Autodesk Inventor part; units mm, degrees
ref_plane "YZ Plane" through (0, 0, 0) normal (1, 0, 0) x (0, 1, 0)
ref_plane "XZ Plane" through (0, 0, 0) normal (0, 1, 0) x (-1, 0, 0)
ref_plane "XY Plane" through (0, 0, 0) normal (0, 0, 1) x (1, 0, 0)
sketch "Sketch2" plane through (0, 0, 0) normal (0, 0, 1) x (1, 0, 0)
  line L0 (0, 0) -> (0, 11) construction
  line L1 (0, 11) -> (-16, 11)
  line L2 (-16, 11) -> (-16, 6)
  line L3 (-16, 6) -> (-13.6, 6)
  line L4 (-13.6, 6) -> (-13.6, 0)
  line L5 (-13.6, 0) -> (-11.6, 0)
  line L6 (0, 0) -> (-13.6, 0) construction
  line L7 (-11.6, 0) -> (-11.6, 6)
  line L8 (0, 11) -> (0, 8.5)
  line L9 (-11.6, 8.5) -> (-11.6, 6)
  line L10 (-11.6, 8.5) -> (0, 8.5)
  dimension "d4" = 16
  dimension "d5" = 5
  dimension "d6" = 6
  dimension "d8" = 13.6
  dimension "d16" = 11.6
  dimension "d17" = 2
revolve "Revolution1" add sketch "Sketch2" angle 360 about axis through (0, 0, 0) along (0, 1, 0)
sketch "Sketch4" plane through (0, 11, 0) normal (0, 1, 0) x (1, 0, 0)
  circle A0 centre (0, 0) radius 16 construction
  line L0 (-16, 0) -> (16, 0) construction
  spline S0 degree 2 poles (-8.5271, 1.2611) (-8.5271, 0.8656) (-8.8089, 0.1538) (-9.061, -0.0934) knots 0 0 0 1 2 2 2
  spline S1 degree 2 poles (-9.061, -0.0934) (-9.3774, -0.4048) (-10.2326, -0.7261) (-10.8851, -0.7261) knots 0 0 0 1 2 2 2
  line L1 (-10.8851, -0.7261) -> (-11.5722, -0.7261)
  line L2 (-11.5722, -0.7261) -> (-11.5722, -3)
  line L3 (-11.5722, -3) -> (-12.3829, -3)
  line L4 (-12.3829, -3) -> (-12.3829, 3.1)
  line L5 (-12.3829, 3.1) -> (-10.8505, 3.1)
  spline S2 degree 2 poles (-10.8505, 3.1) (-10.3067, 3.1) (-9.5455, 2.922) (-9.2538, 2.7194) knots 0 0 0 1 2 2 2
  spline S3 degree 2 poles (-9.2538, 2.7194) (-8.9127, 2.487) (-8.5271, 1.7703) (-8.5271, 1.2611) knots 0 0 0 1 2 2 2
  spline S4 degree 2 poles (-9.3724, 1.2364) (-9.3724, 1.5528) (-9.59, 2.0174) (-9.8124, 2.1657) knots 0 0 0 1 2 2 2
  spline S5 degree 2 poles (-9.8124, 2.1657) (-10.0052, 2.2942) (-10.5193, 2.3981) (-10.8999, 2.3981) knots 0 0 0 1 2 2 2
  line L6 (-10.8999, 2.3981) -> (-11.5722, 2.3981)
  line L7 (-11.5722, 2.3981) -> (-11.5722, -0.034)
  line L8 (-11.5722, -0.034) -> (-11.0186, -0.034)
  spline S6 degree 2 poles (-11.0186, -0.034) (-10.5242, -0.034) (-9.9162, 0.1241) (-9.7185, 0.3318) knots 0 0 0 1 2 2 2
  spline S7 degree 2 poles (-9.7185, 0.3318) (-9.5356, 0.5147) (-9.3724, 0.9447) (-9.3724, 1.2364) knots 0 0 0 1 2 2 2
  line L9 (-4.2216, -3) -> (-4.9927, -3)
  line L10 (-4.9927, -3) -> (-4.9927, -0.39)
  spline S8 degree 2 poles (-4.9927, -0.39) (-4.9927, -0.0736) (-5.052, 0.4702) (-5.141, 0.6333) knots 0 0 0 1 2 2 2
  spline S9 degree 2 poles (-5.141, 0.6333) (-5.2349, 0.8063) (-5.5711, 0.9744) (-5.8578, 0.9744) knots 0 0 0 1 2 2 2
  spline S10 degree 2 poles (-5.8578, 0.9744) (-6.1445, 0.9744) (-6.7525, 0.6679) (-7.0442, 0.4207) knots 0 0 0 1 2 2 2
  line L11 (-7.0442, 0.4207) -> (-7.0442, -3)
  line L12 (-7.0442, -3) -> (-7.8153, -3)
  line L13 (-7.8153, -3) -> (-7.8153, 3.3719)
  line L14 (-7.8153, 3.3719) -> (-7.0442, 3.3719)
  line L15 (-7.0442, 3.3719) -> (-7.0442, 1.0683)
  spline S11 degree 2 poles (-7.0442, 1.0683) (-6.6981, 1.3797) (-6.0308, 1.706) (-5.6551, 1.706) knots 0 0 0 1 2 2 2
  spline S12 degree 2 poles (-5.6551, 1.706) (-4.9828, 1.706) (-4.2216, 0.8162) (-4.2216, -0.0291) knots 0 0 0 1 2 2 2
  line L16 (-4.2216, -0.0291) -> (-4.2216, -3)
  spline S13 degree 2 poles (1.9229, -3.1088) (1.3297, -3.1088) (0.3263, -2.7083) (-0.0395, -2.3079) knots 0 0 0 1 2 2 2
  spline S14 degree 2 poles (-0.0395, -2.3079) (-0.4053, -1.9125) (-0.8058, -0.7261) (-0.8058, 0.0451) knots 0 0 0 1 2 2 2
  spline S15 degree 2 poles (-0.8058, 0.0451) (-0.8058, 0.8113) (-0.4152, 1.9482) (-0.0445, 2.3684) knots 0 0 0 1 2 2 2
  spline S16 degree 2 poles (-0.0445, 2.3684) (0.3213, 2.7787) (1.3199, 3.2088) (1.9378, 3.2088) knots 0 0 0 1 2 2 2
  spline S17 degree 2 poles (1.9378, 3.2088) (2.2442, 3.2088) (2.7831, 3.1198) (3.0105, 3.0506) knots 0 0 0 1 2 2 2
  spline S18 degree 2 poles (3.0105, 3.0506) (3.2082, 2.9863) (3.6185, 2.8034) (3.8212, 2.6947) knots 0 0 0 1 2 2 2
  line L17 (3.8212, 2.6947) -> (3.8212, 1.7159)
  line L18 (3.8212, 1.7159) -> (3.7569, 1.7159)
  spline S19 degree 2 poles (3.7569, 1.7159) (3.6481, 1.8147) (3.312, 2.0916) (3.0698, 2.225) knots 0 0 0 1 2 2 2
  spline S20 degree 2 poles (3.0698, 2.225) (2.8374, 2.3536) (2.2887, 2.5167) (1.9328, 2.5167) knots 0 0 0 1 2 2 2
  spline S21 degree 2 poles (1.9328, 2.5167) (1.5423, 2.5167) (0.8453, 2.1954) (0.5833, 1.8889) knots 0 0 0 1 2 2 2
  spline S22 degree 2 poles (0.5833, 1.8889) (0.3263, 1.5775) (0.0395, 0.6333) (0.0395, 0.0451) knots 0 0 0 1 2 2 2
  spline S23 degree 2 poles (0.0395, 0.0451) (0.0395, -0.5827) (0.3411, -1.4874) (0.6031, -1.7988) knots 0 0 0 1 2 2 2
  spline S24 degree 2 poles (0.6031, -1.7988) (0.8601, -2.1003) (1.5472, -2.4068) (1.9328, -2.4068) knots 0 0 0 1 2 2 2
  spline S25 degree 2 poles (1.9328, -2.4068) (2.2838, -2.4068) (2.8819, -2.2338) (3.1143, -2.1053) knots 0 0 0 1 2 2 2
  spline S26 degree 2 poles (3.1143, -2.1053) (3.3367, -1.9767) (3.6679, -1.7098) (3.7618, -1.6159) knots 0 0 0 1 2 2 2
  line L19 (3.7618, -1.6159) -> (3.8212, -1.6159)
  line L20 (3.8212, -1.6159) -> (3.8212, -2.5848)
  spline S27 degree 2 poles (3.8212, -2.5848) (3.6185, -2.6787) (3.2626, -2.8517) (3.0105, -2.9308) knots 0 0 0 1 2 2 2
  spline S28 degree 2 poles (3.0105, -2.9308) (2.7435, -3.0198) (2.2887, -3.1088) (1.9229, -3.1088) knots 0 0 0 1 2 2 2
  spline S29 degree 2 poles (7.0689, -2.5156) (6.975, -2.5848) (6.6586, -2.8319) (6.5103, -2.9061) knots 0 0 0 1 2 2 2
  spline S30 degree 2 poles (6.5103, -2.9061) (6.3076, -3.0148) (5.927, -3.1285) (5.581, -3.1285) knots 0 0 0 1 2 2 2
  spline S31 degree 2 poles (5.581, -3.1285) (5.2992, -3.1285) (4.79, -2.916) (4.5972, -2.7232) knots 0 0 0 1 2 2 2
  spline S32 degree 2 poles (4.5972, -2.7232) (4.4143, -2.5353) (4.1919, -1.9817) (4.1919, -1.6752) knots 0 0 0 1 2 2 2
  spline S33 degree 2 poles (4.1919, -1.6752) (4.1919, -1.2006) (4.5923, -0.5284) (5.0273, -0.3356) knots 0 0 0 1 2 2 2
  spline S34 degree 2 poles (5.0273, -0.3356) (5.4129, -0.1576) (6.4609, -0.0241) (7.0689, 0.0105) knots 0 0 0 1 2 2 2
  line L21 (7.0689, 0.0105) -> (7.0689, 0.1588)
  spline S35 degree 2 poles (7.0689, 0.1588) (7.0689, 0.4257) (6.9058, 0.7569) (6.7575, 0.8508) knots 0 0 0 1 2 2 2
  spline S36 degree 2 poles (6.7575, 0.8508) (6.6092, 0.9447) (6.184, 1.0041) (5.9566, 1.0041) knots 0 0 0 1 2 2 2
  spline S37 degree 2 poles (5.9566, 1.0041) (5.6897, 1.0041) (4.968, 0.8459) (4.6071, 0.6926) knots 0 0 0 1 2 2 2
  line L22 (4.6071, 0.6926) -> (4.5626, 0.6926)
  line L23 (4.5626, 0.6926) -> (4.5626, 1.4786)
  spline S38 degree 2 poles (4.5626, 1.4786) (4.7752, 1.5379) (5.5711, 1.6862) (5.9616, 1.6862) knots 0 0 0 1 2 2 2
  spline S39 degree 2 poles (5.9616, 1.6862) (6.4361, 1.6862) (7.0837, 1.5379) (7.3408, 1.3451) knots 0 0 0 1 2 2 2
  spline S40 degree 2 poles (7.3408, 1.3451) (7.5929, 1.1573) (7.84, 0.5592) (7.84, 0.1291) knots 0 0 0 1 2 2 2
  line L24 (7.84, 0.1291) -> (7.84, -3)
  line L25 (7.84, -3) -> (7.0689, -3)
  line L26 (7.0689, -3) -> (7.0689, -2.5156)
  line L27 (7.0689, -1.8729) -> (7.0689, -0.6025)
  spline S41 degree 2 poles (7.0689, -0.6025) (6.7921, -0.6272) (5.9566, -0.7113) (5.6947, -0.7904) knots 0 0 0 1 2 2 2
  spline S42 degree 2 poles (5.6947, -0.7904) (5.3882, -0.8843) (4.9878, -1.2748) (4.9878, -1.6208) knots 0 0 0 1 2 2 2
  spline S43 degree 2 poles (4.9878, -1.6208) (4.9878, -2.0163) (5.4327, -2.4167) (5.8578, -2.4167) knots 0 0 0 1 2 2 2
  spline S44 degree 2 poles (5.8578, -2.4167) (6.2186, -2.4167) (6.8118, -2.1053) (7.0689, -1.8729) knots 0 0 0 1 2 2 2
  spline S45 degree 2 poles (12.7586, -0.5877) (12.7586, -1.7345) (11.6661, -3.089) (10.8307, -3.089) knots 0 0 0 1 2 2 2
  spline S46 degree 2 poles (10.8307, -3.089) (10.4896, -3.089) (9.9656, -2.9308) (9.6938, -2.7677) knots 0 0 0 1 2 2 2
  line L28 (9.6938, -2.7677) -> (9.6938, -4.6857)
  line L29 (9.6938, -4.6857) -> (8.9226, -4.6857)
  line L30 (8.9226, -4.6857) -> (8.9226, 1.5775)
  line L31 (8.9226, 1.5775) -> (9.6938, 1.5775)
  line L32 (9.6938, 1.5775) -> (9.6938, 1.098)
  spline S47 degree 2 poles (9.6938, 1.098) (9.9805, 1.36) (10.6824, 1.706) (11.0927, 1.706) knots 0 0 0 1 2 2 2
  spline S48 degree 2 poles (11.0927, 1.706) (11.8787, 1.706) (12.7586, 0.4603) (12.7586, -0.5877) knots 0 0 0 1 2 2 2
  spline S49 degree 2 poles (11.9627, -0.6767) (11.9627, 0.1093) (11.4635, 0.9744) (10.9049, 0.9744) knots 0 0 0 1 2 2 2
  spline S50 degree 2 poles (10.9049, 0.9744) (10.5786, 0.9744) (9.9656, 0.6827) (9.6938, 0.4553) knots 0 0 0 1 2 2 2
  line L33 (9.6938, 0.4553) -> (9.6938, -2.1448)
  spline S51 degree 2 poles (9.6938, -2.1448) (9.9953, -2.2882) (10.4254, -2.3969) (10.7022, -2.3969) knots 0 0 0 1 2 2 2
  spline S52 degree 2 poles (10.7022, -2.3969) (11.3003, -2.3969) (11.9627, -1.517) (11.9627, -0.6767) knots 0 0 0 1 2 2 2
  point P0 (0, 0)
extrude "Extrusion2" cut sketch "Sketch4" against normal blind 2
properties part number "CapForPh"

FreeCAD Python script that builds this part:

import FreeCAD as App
import Part
import Sketcher

V = App.Vector
Q = App.Units.Quantity


def add_polygon(sketch, points):
    """Adds a closed chain of lines whose ends are joined by coincident constraints."""
    first, n = sketch.GeometryCount, len(points)
    for a, b in zip(points, points[1:] + points[:1]):
        sketch.addGeometry(Part.LineSegment(App.Vector(*a, 0), App.Vector(*b, 0)), False)
    for i in range(n):
        sketch.addConstraint(Sketcher.Constraint("Coincident", first + i, 2, first + (i + 1) % n, 1))

doc = App.newDocument("Part")
params = doc.addObject("Spreadsheet::Sheet", "Params")
for row, (alias, value) in enumerate([
    ("sketch1_width", "16 mm"),
    ("sketch1_width2", "2 mm"),
    ("sketch1_height", "5 mm"),
    ("sketch1_height2", "6 mm"),
    ("sketch1_width3", "11.6 mm"),
    ("revolution_angle", "360 deg"),
    ("sketch2_height", "6.1 mm"),
    ("pocket1_length", "2 mm"),
], start=1):
    params.set(f"A{row}", alias)
    params.set(f"B{row}", "=" + value)
    params.setAlias(f"B{row}", alias)

body = doc.addObject("PartDesign::Body", "Body")

# Sketch on XY plane
sketch1 = body.newObject("Sketcher::SketchObject", "Sketch")
sketch1.AttachmentSupport = (doc.getObject("XY_Plane"), [""])
sketch1.MapMode = "FlatFace"
add_polygon(sketch1, [(0, 8.5), (0, 11), (-16, 11), (-16, 6), (-13.6, 6), (-13.6, 0), (-11.6, 0), (-11.6, 8.5)])  # lines 0-7
sketch1.addConstraint([
    Sketcher.Constraint("Vertical", 0),
    Sketcher.Constraint("Horizontal", 1),
    Sketcher.Constraint("Vertical", 2),
    Sketcher.Constraint("Horizontal", 3),
    Sketcher.Constraint("Vertical", 4),
    Sketcher.Constraint("Horizontal", 5),
    Sketcher.Constraint("Vertical", 6),
    Sketcher.Constraint("Horizontal", 7),
    Sketcher.Constraint("PointOnObject", 0, 2, -2),
    Sketcher.Constraint("PointOnObject", 4, 2, -1),
    Sketcher.Constraint("DistanceX", 1, 2, 1, 1, Q("16 mm")),
    Sketcher.Constraint("DistanceX", 5, 1, 5, 2, Q("2 mm")),
    Sketcher.Constraint("DistanceY", 2, 2, 2, 1, Q("5 mm")),
    Sketcher.Constraint("DistanceY", 4, 2, 4, 1, Q("6 mm")),
    Sketcher.Constraint("DistanceX", 7, 1, 7, 2, Q("11.6 mm")),
    Sketcher.Constraint("DistanceY", 0, 1, 0, 2, Q("2.5 mm")),
])
sketch1.setExpression("Constraints[18]", "Params.sketch1_width")
sketch1.setExpression("Constraints[19]", "Params.sketch1_width2")
sketch1.setExpression("Constraints[20]", "Params.sketch1_height")
sketch1.setExpression("Constraints[21]", "Params.sketch1_height2")
sketch1.setExpression("Constraints[22]", "Params.sketch1_width3")
revolution = body.newObject("PartDesign::Revolution", "Revolution")
revolution.Profile = sketch1
revolution.ReferenceAxis = (sketch1, ["V_Axis"])
revolution.setExpression("Angle", "Params.revolution_angle")

# Sketch on XZ plane
sketch2 = body.newObject("Sketcher::SketchObject", "Sketch001")
sketch2.AttachmentSupport = (doc.getObject("XZ_Plane"), [""])
sketch2.MapMode = "FlatFace"
sketch2.AttachmentOffset = App.Placement(V(0, 0, -11), App.Rotation())
sketch2.addGeometry([
    Part.BSplineCurve([V(-8.5271, -1.2611, 0), V(-8.5271, -0.8656, 0), V(-8.8089, -0.1538, 0), V(-9.061, 0.0934, 0)], [3, 1, 3], [0, 1, 2], False, 2, [1, 1, 1, 1], False),  # 0
    Part.BSplineCurve([V(-9.2538, -2.7194, 0), V(-8.9127, -2.487, 0), V(-8.5271, -1.7703, 0), V(-8.5271, -1.2611, 0)], [3, 1, 3], [0, 1, 2], False, 2, [1, 1, 1, 1], False),  # 1
    Part.BSplineCurve([V(-10.8505, -3.1, 0), V(-10.3067, -3.1, 0), V(-9.5455, -2.922, 0), V(-9.2538, -2.7194, 0)], [3, 1, 3], [0, 1, 2], False, 2, [1, 1, 1, 1], False),  # 2
    Part.LineSegment(V(-10.8505, -3.1, 0), V(-12.3829, -3.1, 0)),  # 3
    Part.LineSegment(V(-12.3829, -3.1, 0), V(-12.3829, 3, 0)),  # 4
    Part.LineSegment(V(-12.3829, 3, 0), V(-11.5722, 3, 0)),  # 5
    Part.LineSegment(V(-11.5722, 3, 0), V(-11.5722, 0.7261, 0)),  # 6
    Part.LineSegment(V(-11.5722, 0.7261, 0), V(-10.8851, 0.7261, 0)),  # 7
    Part.BSplineCurve([V(-9.061, 0.0934, 0), V(-9.3774, 0.4048, 0), V(-10.2326, 0.7261, 0), V(-10.8851, 0.7261, 0)], [3, 1, 3], [0, 1, 2], False, 2, [1, 1, 1, 1], False),  # 8
    Part.BSplineCurve([V(-9.3724, -1.2364, 0), V(-9.3724, -1.5528, 0), V(-9.59, -2.0174, 0), V(-9.8124, -2.1657, 0)], [3, 1, 3], [0, 1, 2], False, 2, [1, 1, 1, 1], False),  # 9
    Part.BSplineCurve([V(-9.7185, -0.3318, 0), V(-9.5356, -0.5147, 0), V(-9.3724, -0.9447, 0), V(-9.3724, -1.2364, 0)], [3, 1, 3], [0, 1, 2], False, 2, [1, 1, 1, 1], False),  # 10
    Part.BSplineCurve([V(-11.0186, 0.034, 0), V(-10.5242, 0.034, 0), V(-9.9162, -0.1241, 0), V(-9.7185, -0.3318, 0)], [3, 1, 3], [0, 1, 2], False, 2, [1, 1, 1, 1], False),  # 11
    Part.LineSegment(V(-11.0186, 0.034, 0), V(-11.5722, 0.034, 0)),  # 12
    Part.LineSegment(V(-11.5722, 0.034, 0), V(-11.5722, -2.3981, 0)),  # 13
    Part.LineSegment(V(-11.5722, -2.3981, 0), V(-10.8999, -2.3981, 0)),  # 14
    Part.BSplineCurve([V(-9.8124, -2.1657, 0), V(-10.0052, -2.2942, 0), V(-10.5193, -2.3981, 0), V(-10.8999, -2.3981, 0)], [3, 1, 3], [0, 1, 2], False, 2, [1, 1, 1, 1], False),  # 15
    Part.LineSegment(V(-4.9927, 3, 0), V(-4.2216, 3, 0)),  # 16
    Part.LineSegment(V(-4.2216, 3, 0), V(-4.2216, 0.0291, 0)),  # 17
    Part.BSplineCurve([V(-5.6551, -1.706, 0), V(-4.9828, -1.706, 0), V(-4.2216, -0.8162, 0), V(-4.2216, 0.0291, 0)], [3, 1, 3], [0, 1, 2], False, 2, [1, 1, 1, 1], False),  # 18
    Part.BSplineCurve([V(-7.0442, -1.0683, 0), V(-6.6981, -1.3797, 0), V(-6.0308, -1.706, 0), V(-5.6551, -1.706, 0)], [3, 1, 3], [0, 1, 2], False, 2, [1, 1, 1, 1], False),  # 19
    Part.LineSegment(V(-7.0442, -1.0683, 0), V(-7.0442, -3.3719, 0)),  # 20
    Part.LineSegment(V(-7.0442, -3.3719, 0), V(-7.8153, -3.3719, 0)),  # 21
    Part.LineSegment(V(-7.8153, -3.3719, 0), V(-7.8153, 3, 0)),  # 22
    Part.LineSegment(V(-7.8153, 3, 0), V(-7.0442, 3, 0)),  # 23
    Part.LineSegment(V(-7.0442, 3, 0), V(-7.0442, -0.4207, 0)),  # 24
    Part.BSplineCurve([V(-5.8578, -0.9744, 0), V(-6.1445, -0.9744, 0), V(-6.7525, -0.6679, 0), V(-7.0442, -0.4207, 0)], [3, 1, 3], [0, 1, 2], False, 2, [1, 1, 1, 1], False),  # 25
    Part.BSplineCurve([V(-5.141, -0.6333, 0), V(-5.2349, -0.8063, 0), V(-5.5711, -0.9744, 0), V(-5.8578, -0.9744, 0)], [3, 1, 3], [0, 1, 2], False, 2, [1, 1, 1, 1], False),  # 26
    Part.BSplineCurve([V(-4.9927, 0.39, 0), V(-4.9927, 0.0736, 0), V(-5.052, -0.4702, 0), V(-5.141, -0.6333, 0)], [3, 1, 3], [0, 1, 2], False, 2, [1, 1, 1, 1], False),  # 27
    Part.LineSegment(V(-4.9927, 0.39, 0), V(-4.9927, 3, 0)),  # 28
    Part.BSplineCurve([V(1.9229, 3.1088, 0), V(1.3297, 3.1088, 0), V(0.3263, 2.7083, 0), V(-0.0395, 2.3079, 0)], [3, 1, 3], [0, 1, 2], False, 2, [1, 1, 1, 1], False),  # 29
    Part.BSplineCurve([V(3.0105, 2.9308, 0), V(2.7435, 3.0198, 0), V(2.2887, 3.1088, 0), V(1.9229, 3.1088, 0)], [3, 1, 3], [0, 1, 2], False, 2, [1, 1, 1, 1], False),  # 30
    Part.BSplineCurve([V(3.8212, 2.5848, 0), V(3.6185, 2.6787, 0), V(3.2626, 2.8517, 0), V(3.0105, 2.9308, 0)], [3, 1, 3], [0, 1, 2], False, 2, [1, 1, 1, 1], False),  # 31
    Part.LineSegment(V(3.8212, 2.5848, 0), V(3.8212, 1.6159, 0)),  # 32
    Part.LineSegment(V(3.8212, 1.6159, 0), V(3.7618, 1.6159, 0)),  # 33
    Part.BSplineCurve([V(3.1143, 2.1053, 0), V(3.3367, 1.9767, 0), V(3.6679, 1.7098, 0), V(3.7618, 1.6159, 0)], [3, 1, 3], [0, 1, 2], False, 2, [1, 1, 1, 1], False),  # 34
    Part.BSplineCurve([V(1.9328, 2.4068, 0), V(2.2838, 2.4068, 0), V(2.8819, 2.2338, 0), V(3.1143, 2.1053, 0)], [3, 1, 3], [0, 1, 2], False, 2, [1, 1, 1, 1], False),  # 35
    Part.BSplineCurve([V(0.6031, 1.7988, 0), V(0.8601, 2.1003, 0), V(1.5472, 2.4068, 0), V(1.9328, 2.4068, 0)], [3, 1, 3], [0, 1, 2], False, 2, [1, 1, 1, 1], False),  # 36
    Part.BSplineCurve([V(0.0395, -0.0451, 0), V(0.0395, 0.5827, 0), V(0.3411, 1.4874, 0), V(0.6031, 1.7988, 0)], [3, 1, 3], [0, 1, 2], False, 2, [1, 1, 1, 1], False),  # 37
    Part.BSplineCurve([V(0.5833, -1.8889, 0), V(0.3263, -1.5775, 0), V(0.0395, -0.6333, 0), V(0.0395, -0.0451, 0)], [3, 1, 3], [0, 1, 2], False, 2, [1, 1, 1, 1], False),  # 38
    Part.BSplineCurve([V(1.9328, -2.5167, 0), V(1.5423, -2.5167, 0), V(0.8453, -2.1954, 0), V(0.5833, -1.8889, 0)], [3, 1, 3], [0, 1, 2], False, 2, [1, 1, 1, 1], False),  # 39
    Part.BSplineCurve([V(3.0698, -2.225, 0), V(2.8374, -2.3536, 0), V(2.2887, -2.5167, 0), V(1.9328, -2.5167, 0)], [3, 1, 3], [0, 1, 2], False, 2, [1, 1, 1, 1], False),  # 40
    Part.BSplineCurve([V(3.7569, -1.7159, 0), V(3.6481, -1.8147, 0), V(3.312, -2.0916, 0), V(3.0698, -2.225, 0)], [3, 1, 3], [0, 1, 2], False, 2, [1, 1, 1, 1], False),  # 41
    Part.LineSegment(V(3.7569, -1.7159, 0), V(3.8212, -1.7159, 0)),  # 42
    Part.LineSegment(V(3.8212, -1.7159, 0), V(3.8212, -2.6947, 0)),  # 43
    Part.BSplineCurve([V(3.0105, -3.0506, 0), V(3.2082, -2.9863, 0), V(3.6185, -2.8034, 0), V(3.8212, -2.6947, 0)], [3, 1, 3], [0, 1, 2], False, 2, [1, 1, 1, 1], False),  # 44
    Part.BSplineCurve([V(1.9378, -3.2088, 0), V(2.2442, -3.2088, 0), V(2.7831, -3.1198, 0), V(3.0105, -3.0506, 0)], [3, 1, 3], [0, 1, 2], False, 2, [1, 1, 1, 1], False),  # 45
    Part.BSplineCurve([V(-0.0445, -2.3684, 0), V(0.3213, -2.7787, 0), V(1.3199, -3.2088, 0), V(1.9378, -3.2088, 0)], [3, 1, 3], [0, 1, 2], False, 2, [1, 1, 1, 1], False),  # 46
    Part.BSplineCurve([V(-0.8058, -0.0451, 0), V(-0.8058, -0.8113, 0), V(-0.4152, -1.9482, 0), V(-0.0445, -2.3684, 0)], [3, 1, 3], [0, 1, 2], False, 2, [1, 1, 1, 1], False),  # 47
    Part.BSplineCurve([V(-0.0395, 2.3079, 0), V(-0.4053, 1.9125, 0), V(-0.8058, 0.7261, 0), V(-0.8058, -0.0451, 0)], [3, 1, 3], [0, 1, 2], False, 2, [1, 1, 1, 1], False),  # 48
    Part.BSplineCurve([V(7.0689, 2.5156, 0), V(6.975, 2.5848, 0), V(6.6586, 2.8319, 0), V(6.5103, 2.9061, 0)], [3, 1, 3], [0, 1, 2], False, 2, [1, 1, 1, 1], False),  # 49
    Part.LineSegment(V(7.0689, 2.5156, 0), V(7.0689, 3, 0)),  # 50
    Part.LineSegment(V(7.0689, 3, 0), V(7.84, 3, 0)),  # 51
    Part.LineSegment(V(7.84, 3, 0), V(7.84, -0.1291, 0)),  # 52
    Part.BSplineCurve([V(7.3408, -1.3451, 0), V(7.5929, -1.1573, 0), V(7.84, -0.5592, 0), V(7.84, -0.1291, 0)], [3, 1, 3], [0, 1, 2], False, 2, [1, 1, 1, 1], False),  # 53
    Part.BSplineCurve([V(5.9616, -1.6862, 0), V(6.4361, -1.6862, 0), V(7.0837, -1.5379, 0), V(7.3408, -1.3451, 0)], [3, 1, 3], [0, 1, 2], False, 2, [1, 1, 1, 1], False),  # 54
    Part.BSplineCurve([V(4.5626, -1.4786, 0), V(4.7752, -1.5379, 0), V(5.5711, -1.6862, 0), V(5.9616, -1.6862, 0)], [3, 1, 3], [0, 1, 2], False, 2, [1, 1, 1, 1], False),  # 55
    Part.LineSegment(V(4.5626, -1.4786, 0), V(4.5626, -0.6926, 0)),  # 56
    Part.LineSegment(V(4.5626, -0.6926, 0), V(4.6071, -0.6926, 0)),  # 57
    Part.BSplineCurve([V(5.9566, -1.0041, 0), V(5.6897, -1.0041, 0), V(4.968, -0.8459, 0), V(4.6071, -0.6926, 0)], [3, 1, 3], [0, 1, 2], False, 2, [1, 1, 1, 1], False),  # 58
    Part.BSplineCurve([V(6.7575, -0.8508, 0), V(6.6092, -0.9447, 0), V(6.184, -1.0041, 0), V(5.9566, -1.0041, 0)], [3, 1, 3], [0, 1, 2], False, 2, [1, 1, 1, 1], False),  # 59
    Part.BSplineCurve([V(7.0689, -0.1588, 0), V(7.0689, -0.4257, 0), V(6.9058, -0.7569, 0), V(6.7575, -0.8508, 0)], [3, 1, 3], [0, 1, 2], False, 2, [1, 1, 1, 1], False),  # 60
    Part.LineSegment(V(7.0689, -0.1588, 0), V(7.0689, -0.0105, 0)),  # 61
    Part.BSplineCurve([V(5.0273, 0.3356, 0), V(5.4129, 0.1576, 0), V(6.4609, 0.0241, 0), V(7.0689, -0.0105, 0)], [3, 1, 3], [0, 1, 2], False, 2, [1, 1, 1, 1], False),  # 62
    Part.BSplineCurve([V(4.1919, 1.6752, 0), V(4.1919, 1.2006, 0), V(4.5923, 0.5284, 0), V(5.0273, 0.3356, 0)], [3, 1, 3], [0, 1, 2], False, 2, [1, 1, 1, 1], False),  # 63
    Part.BSplineCurve([V(4.5972, 2.7232, 0), V(4.4143, 2.5353, 0), V(4.1919, 1.9817, 0), V(4.1919, 1.6752, 0)], [3, 1, 3], [0, 1, 2], False, 2, [1, 1, 1, 1], False),  # 64
    Part.BSplineCurve([V(5.581, 3.1285, 0), V(5.2992, 3.1285, 0), V(4.79, 2.916, 0), V(4.5972, 2.7232, 0)], [3, 1, 3], [0, 1, 2], False, 2, [1, 1, 1, 1], False),  # 65
    Part.BSplineCurve([V(6.5103, 2.9061, 0), V(6.3076, 3.0148, 0), V(5.927, 3.1285, 0), V(5.581, 3.1285, 0)], [3, 1, 3], [0, 1, 2], False, 2, [1, 1, 1, 1], False),  # 66
    Part.LineSegment(V(7.0689, 0.6025, 0), V(7.0689, 1.8729, 0)),  # 67
    Part.BSplineCurve([V(5.8578, 2.4167, 0), V(6.2186, 2.4167, 0), V(6.8118, 2.1053, 0), V(7.0689, 1.8729, 0)], [3, 1, 3], [0, 1, 2], False, 2, [1, 1, 1, 1], False),  # 68
    Part.BSplineCurve([V(4.9878, 1.6208, 0), V(4.9878, 2.0163, 0), V(5.4327, 2.4167, 0), V(5.8578, 2.4167, 0)], [3, 1, 3], [0, 1, 2], False, 2, [1, 1, 1, 1], False),  # 69
    Part.BSplineCurve([V(5.6947, 0.7904, 0), V(5.3882, 0.8843, 0), V(4.9878, 1.2748, 0), V(4.9878, 1.6208, 0)], [3, 1, 3], [0, 1, 2], False, 2, [1, 1, 1, 1], False),  # 70
    Part.BSplineCurve([V(7.0689, 0.6025, 0), V(6.7921, 0.6272, 0), V(5.9566, 0.7113, 0), V(5.6947, 0.7904, 0)], [3, 1, 3], [0, 1, 2], False, 2, [1, 1, 1, 1], False),  # 71
    Part.BSplineCurve([V(12.7586, 0.5877, 0), V(12.7586, 1.7345, 0), V(11.6661, 3.089, 0), V(10.8307, 3.089, 0)], [3, 1, 3], [0, 1, 2], False, 2, [1, 1, 1, 1], False),  # 72
    Part.BSplineCurve([V(11.0927, -1.706, 0), V(11.8787, -1.706, 0), V(12.7586, -0.4603, 0), V(12.7586, 0.5877, 0)], [3, 1, 3], [0, 1, 2], False, 2, [1, 1, 1, 1], False),  # 73
    Part.BSplineCurve([V(9.6938, -1.098, 0), V(9.9805, -1.36, 0), V(10.6824, -1.706, 0), V(11.0927, -1.706, 0)], [3, 1, 3], [0, 1, 2], False, 2, [1, 1, 1, 1], False),  # 74
    Part.LineSegment(V(9.6938, -1.098, 0), V(9.6938, -1.5775, 0)),  # 75
    Part.LineSegment(V(9.6938, -1.5775, 0), V(8.9226, -1.5775, 0)),  # 76
    Part.LineSegment(V(8.9226, -1.5775, 0), V(8.9226, 4.6857, 0)),  # 77
    Part.LineSegment(V(8.9226, 4.6857, 0), V(9.6938, 4.6857, 0)),  # 78
    Part.LineSegment(V(9.6938, 4.6857, 0), V(9.6938, 2.7677, 0)),  # 79
    Part.BSplineCurve([V(10.8307, 3.089, 0), V(10.4896, 3.089, 0), V(9.9656, 2.9308, 0), V(9.6938, 2.7677, 0)], [3, 1, 3], [0, 1, 2], False, 2, [1, 1, 1, 1], False),  # 80
    Part.BSplineCurve([V(11.9627, 0.6767, 0), V(11.9627, -0.1093, 0), V(11.4635, -0.9744, 0), V(10.9049, -0.9744, 0)], [3, 1, 3], [0, 1, 2], False, 2, [1, 1, 1, 1], False),  # 81
    Part.BSplineCurve([V(10.7022, 2.3969, 0), V(11.3003, 2.3969, 0), V(11.9627, 1.517, 0), V(11.9627, 0.6767, 0)], [3, 1, 3], [0, 1, 2], False, 2, [1, 1, 1, 1], False),  # 82
    Part.BSplineCurve([V(9.6938, 2.1448, 0), V(9.9953, 2.2882, 0), V(10.4254, 2.3969, 0), V(10.7022, 2.3969, 0)], [3, 1, 3], [0, 1, 2], False, 2, [1, 1, 1, 1], False),  # 83
    Part.LineSegment(V(9.6938, 2.1448, 0), V(9.6938, -0.4553, 0)),  # 84
    Part.BSplineCurve([V(10.9049, -0.9744, 0), V(10.5786, -0.9744, 0), V(9.9656, -0.6827, 0), V(9.6938, -0.4553, 0)], [3, 1, 3], [0, 1, 2], False, 2, [1, 1, 1, 1], False),  # 85
], False)
sketch2.addConstraint([
    Sketcher.Constraint("Block", 0),
    Sketcher.Constraint("Block", 1),
    Sketcher.Constraint("Block", 2),
    Sketcher.Constraint("Block", 8),
    Sketcher.Constraint("Block", 9),
    Sketcher.Constraint("Block", 10),
    Sketcher.Constraint("Block", 11),
    Sketcher.Constraint("Block", 15),
    Sketcher.Constraint("Block", 18),
    Sketcher.Constraint("Block", 19),
    Sketcher.Constraint("Block", 25),
    Sketcher.Constraint("Block", 26),
    Sketcher.Constraint("Block", 27),
    Sketcher.Constraint("Block", 29),
    Sketcher.Constraint("Block", 30),
    Sketcher.Constraint("Block", 31),
    Sketcher.Constraint("Block", 34),
    Sketcher.Constraint("Block", 35),
    Sketcher.Constraint("Block", 36),
    Sketcher.Constraint("Block", 37),
    Sketcher.Constraint("Block", 38),
    Sketcher.Constraint("Block", 39),
    Sketcher.Constraint("Block", 40),
    Sketcher.Constraint("Block", 41),
    Sketcher.Constraint("Block", 44),
    Sketcher.Constraint("Block", 45),
    Sketcher.Constraint("Block", 46),
    Sketcher.Constraint("Block", 47),
    Sketcher.Constraint("Block", 48),
    Sketcher.Constraint("Block", 49),
    Sketcher.Constraint("Block", 53),
    Sketcher.Constraint("Block", 54),
    Sketcher.Constraint("Block", 55),
    Sketcher.Constraint("Block", 58),
    Sketcher.Constraint("Block", 59),
    Sketcher.Constraint("Block", 60),
    Sketcher.Constraint("Block", 62),
    Sketcher.Constraint("Block", 63),
    Sketcher.Constraint("Block", 64),
    Sketcher.Constraint("Block", 65),
    Sketcher.Constraint("Block", 66),
    Sketcher.Constraint("Block", 68),
    Sketcher.Constraint("Block", 69),
    Sketcher.Constraint("Block", 70),
    Sketcher.Constraint("Block", 71),
    Sketcher.Constraint("Block", 72),
    Sketcher.Constraint("Block", 73),
    Sketcher.Constraint("Block", 74),
    Sketcher.Constraint("Block", 80),
    Sketcher.Constraint("Block", 81),
    Sketcher.Constraint("Block", 82),
    Sketcher.Constraint("Block", 83),
    Sketcher.Constraint("Block", 85),
    Sketcher.Constraint("Coincident", 2, 1, 3, 1),
    Sketcher.Constraint("Coincident", 3, 2, 4, 1),
    Sketcher.Constraint("Coincident", 4, 2, 5, 1),
    Sketcher.Constraint("Coincident", 5, 2, 6, 1),
    Sketcher.Constraint("Coincident", 6, 2, 7, 1),
    Sketcher.Constraint("Coincident", 7, 2, 8, 2),
    Sketcher.Constraint("Coincident", 11, 1, 12, 1),
    Sketcher.Constraint("Coincident", 12, 2, 13, 1),
    Sketcher.Constraint("Coincident", 13, 2, 14, 1),
    Sketcher.Constraint("Coincident", 14, 2, 15, 2),
    Sketcher.Constraint("Coincident", 16, 2, 17, 1),
    Sketcher.Constraint("Coincident", 17, 2, 18, 2),
    Sketcher.Constraint("Coincident", 19, 1, 20, 1),
    Sketcher.Constraint("Coincident", 20, 2, 21, 1),
    Sketcher.Constraint("Coincident", 21, 2, 22, 1),
    Sketcher.Constraint("Coincident", 22, 2, 23, 1),
    Sketcher.Constraint("Coincident", 23, 2, 24, 1),
    Sketcher.Constraint("Coincident", 24, 2, 25, 2),
    Sketcher.Constraint("Coincident", 27, 1, 28, 1),
    Sketcher.Constraint("Coincident", 28, 2, 16, 1),
    Sketcher.Constraint("Coincident", 31, 1, 32, 1),
    Sketcher.Constraint("Coincident", 32, 2, 33, 1),
    Sketcher.Constraint("Coincident", 33, 2, 34, 2),
    Sketcher.Constraint("Coincident", 41, 1, 42, 1),
    Sketcher.Constraint("Coincident", 42, 2, 43, 1),
    Sketcher.Constraint("Coincident", 43, 2, 44, 2),
    Sketcher.Constraint("Coincident", 49, 1, 50, 1),
    Sketcher.Constraint("Coincident", 50, 2, 51, 1),
    Sketcher.Constraint("Coincident", 51, 2, 52, 1),
    Sketcher.Constraint("Coincident", 52, 2, 53, 2),
    Sketcher.Constraint("Coincident", 55, 1, 56, 1),
    Sketcher.Constraint("Coincident", 56, 2, 57, 1),
    Sketcher.Constraint("Coincident", 57, 2, 58, 2),
    Sketcher.Constraint("Coincident", 60, 1, 61, 1),
    Sketcher.Constraint("Coincident", 61, 2, 62, 2),
    Sketcher.Constraint("Coincident", 67, 2, 68, 2),
    Sketcher.Constraint("Coincident", 71, 1, 67, 1),
    Sketcher.Constraint("Coincident", 74, 1, 75, 1),
    Sketcher.Constraint("Coincident", 75, 2, 76, 1),
    Sketcher.Constraint("Coincident", 76, 2, 77, 1),
    Sketcher.Constraint("Coincident", 77, 2, 78, 1),
    Sketcher.Constraint("Coincident", 78, 2, 79, 1),
    Sketcher.Constraint("Coincident", 79, 2, 80, 2),
    Sketcher.Constraint("Coincident", 83, 1, 84, 1),
    Sketcher.Constraint("Coincident", 84, 2, 85, 2),
    Sketcher.Constraint("Horizontal", 3),
    Sketcher.Constraint("Vertical", 4),
    Sketcher.Constraint("Horizontal", 5),
    Sketcher.Constraint("Vertical", 6),
    Sketcher.Constraint("Horizontal", 7),
    Sketcher.Constraint("Horizontal", 12),
    Sketcher.Constraint("Vertical", 13),
    Sketcher.Constraint("Horizontal", 14),
    Sketcher.Constraint("Horizontal", 16),
    Sketcher.Constraint("Vertical", 17),
    Sketcher.Constraint("Vertical", 20),
    Sketcher.Constraint("Horizontal", 21),
    Sketcher.Constraint("Vertical", 22),
    Sketcher.Constraint("Horizontal", 23),
    Sketcher.Constraint("Vertical", 24),
    Sketcher.Constraint("Vertical", 28),
    Sketcher.Constraint("Vertical", 32),
    Sketcher.Constraint("Horizontal", 33),
    Sketcher.Constraint("Horizontal", 42),
    Sketcher.Constraint("Vertical", 43),
    Sketcher.Constraint("Vertical", 50),
    Sketcher.Constraint("Horizontal", 51),
    Sketcher.Constraint("Vertical", 52),
    Sketcher.Constraint("Vertical", 56),
    Sketcher.Constraint("Horizontal", 57),
    Sketcher.Constraint("Vertical", 75),
    Sketcher.Constraint("Horizontal", 76),
    Sketcher.Constraint("Vertical", 77),
    Sketcher.Constraint("Horizontal", 78),
    Sketcher.Constraint("Vertical", 79),
    Sketcher.Constraint("DistanceY", 4, 1, 4, 2, Q("6.1 mm")),
    Sketcher.Constraint("DistanceY", -1, 1, 16, 2, Q("3 mm")),
    Sketcher.Constraint("DistanceY", -1, 1, 22, 2, Q("3 mm")),
    Sketcher.Constraint("DistanceY", -1, 1, 50, 2, Q("3 mm")),
    Sketcher.Constraint("DistanceX", 7, 1, 7, 2, Q("0.687 mm")),
    Sketcher.Constraint("DistanceX", 21, 2, 21, 1, Q("0.771 mm")),
    Sketcher.Constraint("DistanceY", 22, 1, 22, 2, Q("6.372 mm")),
    Sketcher.Constraint("DistanceY", 79, 2, 79, 1, Q("1.918 mm")),
    Sketcher.Constraint("DistanceX", 3, 2, 3, 1, Q("1.5324 mm")),
    Sketcher.Constraint("DistanceX", 12, 2, 12, 1, Q("0.5536 mm")),
    Sketcher.Constraint("DistanceX", 76, 2, 76, 1, Q("0.7712 mm")),
    Sketcher.Constraint("DistanceY", 75, 2, 75, 1, Q("0.4795 mm")),
])
sketch2.setExpression("Constraints[128]", "Params.sketch2_height")
pocket1 = body.newObject("PartDesign::Pocket", "Pocket")
pocket1.Profile = sketch2
pocket1.setExpression("Length", "Params.pocket1_length")
pocket1.Reversed = True

doc.recompute()
